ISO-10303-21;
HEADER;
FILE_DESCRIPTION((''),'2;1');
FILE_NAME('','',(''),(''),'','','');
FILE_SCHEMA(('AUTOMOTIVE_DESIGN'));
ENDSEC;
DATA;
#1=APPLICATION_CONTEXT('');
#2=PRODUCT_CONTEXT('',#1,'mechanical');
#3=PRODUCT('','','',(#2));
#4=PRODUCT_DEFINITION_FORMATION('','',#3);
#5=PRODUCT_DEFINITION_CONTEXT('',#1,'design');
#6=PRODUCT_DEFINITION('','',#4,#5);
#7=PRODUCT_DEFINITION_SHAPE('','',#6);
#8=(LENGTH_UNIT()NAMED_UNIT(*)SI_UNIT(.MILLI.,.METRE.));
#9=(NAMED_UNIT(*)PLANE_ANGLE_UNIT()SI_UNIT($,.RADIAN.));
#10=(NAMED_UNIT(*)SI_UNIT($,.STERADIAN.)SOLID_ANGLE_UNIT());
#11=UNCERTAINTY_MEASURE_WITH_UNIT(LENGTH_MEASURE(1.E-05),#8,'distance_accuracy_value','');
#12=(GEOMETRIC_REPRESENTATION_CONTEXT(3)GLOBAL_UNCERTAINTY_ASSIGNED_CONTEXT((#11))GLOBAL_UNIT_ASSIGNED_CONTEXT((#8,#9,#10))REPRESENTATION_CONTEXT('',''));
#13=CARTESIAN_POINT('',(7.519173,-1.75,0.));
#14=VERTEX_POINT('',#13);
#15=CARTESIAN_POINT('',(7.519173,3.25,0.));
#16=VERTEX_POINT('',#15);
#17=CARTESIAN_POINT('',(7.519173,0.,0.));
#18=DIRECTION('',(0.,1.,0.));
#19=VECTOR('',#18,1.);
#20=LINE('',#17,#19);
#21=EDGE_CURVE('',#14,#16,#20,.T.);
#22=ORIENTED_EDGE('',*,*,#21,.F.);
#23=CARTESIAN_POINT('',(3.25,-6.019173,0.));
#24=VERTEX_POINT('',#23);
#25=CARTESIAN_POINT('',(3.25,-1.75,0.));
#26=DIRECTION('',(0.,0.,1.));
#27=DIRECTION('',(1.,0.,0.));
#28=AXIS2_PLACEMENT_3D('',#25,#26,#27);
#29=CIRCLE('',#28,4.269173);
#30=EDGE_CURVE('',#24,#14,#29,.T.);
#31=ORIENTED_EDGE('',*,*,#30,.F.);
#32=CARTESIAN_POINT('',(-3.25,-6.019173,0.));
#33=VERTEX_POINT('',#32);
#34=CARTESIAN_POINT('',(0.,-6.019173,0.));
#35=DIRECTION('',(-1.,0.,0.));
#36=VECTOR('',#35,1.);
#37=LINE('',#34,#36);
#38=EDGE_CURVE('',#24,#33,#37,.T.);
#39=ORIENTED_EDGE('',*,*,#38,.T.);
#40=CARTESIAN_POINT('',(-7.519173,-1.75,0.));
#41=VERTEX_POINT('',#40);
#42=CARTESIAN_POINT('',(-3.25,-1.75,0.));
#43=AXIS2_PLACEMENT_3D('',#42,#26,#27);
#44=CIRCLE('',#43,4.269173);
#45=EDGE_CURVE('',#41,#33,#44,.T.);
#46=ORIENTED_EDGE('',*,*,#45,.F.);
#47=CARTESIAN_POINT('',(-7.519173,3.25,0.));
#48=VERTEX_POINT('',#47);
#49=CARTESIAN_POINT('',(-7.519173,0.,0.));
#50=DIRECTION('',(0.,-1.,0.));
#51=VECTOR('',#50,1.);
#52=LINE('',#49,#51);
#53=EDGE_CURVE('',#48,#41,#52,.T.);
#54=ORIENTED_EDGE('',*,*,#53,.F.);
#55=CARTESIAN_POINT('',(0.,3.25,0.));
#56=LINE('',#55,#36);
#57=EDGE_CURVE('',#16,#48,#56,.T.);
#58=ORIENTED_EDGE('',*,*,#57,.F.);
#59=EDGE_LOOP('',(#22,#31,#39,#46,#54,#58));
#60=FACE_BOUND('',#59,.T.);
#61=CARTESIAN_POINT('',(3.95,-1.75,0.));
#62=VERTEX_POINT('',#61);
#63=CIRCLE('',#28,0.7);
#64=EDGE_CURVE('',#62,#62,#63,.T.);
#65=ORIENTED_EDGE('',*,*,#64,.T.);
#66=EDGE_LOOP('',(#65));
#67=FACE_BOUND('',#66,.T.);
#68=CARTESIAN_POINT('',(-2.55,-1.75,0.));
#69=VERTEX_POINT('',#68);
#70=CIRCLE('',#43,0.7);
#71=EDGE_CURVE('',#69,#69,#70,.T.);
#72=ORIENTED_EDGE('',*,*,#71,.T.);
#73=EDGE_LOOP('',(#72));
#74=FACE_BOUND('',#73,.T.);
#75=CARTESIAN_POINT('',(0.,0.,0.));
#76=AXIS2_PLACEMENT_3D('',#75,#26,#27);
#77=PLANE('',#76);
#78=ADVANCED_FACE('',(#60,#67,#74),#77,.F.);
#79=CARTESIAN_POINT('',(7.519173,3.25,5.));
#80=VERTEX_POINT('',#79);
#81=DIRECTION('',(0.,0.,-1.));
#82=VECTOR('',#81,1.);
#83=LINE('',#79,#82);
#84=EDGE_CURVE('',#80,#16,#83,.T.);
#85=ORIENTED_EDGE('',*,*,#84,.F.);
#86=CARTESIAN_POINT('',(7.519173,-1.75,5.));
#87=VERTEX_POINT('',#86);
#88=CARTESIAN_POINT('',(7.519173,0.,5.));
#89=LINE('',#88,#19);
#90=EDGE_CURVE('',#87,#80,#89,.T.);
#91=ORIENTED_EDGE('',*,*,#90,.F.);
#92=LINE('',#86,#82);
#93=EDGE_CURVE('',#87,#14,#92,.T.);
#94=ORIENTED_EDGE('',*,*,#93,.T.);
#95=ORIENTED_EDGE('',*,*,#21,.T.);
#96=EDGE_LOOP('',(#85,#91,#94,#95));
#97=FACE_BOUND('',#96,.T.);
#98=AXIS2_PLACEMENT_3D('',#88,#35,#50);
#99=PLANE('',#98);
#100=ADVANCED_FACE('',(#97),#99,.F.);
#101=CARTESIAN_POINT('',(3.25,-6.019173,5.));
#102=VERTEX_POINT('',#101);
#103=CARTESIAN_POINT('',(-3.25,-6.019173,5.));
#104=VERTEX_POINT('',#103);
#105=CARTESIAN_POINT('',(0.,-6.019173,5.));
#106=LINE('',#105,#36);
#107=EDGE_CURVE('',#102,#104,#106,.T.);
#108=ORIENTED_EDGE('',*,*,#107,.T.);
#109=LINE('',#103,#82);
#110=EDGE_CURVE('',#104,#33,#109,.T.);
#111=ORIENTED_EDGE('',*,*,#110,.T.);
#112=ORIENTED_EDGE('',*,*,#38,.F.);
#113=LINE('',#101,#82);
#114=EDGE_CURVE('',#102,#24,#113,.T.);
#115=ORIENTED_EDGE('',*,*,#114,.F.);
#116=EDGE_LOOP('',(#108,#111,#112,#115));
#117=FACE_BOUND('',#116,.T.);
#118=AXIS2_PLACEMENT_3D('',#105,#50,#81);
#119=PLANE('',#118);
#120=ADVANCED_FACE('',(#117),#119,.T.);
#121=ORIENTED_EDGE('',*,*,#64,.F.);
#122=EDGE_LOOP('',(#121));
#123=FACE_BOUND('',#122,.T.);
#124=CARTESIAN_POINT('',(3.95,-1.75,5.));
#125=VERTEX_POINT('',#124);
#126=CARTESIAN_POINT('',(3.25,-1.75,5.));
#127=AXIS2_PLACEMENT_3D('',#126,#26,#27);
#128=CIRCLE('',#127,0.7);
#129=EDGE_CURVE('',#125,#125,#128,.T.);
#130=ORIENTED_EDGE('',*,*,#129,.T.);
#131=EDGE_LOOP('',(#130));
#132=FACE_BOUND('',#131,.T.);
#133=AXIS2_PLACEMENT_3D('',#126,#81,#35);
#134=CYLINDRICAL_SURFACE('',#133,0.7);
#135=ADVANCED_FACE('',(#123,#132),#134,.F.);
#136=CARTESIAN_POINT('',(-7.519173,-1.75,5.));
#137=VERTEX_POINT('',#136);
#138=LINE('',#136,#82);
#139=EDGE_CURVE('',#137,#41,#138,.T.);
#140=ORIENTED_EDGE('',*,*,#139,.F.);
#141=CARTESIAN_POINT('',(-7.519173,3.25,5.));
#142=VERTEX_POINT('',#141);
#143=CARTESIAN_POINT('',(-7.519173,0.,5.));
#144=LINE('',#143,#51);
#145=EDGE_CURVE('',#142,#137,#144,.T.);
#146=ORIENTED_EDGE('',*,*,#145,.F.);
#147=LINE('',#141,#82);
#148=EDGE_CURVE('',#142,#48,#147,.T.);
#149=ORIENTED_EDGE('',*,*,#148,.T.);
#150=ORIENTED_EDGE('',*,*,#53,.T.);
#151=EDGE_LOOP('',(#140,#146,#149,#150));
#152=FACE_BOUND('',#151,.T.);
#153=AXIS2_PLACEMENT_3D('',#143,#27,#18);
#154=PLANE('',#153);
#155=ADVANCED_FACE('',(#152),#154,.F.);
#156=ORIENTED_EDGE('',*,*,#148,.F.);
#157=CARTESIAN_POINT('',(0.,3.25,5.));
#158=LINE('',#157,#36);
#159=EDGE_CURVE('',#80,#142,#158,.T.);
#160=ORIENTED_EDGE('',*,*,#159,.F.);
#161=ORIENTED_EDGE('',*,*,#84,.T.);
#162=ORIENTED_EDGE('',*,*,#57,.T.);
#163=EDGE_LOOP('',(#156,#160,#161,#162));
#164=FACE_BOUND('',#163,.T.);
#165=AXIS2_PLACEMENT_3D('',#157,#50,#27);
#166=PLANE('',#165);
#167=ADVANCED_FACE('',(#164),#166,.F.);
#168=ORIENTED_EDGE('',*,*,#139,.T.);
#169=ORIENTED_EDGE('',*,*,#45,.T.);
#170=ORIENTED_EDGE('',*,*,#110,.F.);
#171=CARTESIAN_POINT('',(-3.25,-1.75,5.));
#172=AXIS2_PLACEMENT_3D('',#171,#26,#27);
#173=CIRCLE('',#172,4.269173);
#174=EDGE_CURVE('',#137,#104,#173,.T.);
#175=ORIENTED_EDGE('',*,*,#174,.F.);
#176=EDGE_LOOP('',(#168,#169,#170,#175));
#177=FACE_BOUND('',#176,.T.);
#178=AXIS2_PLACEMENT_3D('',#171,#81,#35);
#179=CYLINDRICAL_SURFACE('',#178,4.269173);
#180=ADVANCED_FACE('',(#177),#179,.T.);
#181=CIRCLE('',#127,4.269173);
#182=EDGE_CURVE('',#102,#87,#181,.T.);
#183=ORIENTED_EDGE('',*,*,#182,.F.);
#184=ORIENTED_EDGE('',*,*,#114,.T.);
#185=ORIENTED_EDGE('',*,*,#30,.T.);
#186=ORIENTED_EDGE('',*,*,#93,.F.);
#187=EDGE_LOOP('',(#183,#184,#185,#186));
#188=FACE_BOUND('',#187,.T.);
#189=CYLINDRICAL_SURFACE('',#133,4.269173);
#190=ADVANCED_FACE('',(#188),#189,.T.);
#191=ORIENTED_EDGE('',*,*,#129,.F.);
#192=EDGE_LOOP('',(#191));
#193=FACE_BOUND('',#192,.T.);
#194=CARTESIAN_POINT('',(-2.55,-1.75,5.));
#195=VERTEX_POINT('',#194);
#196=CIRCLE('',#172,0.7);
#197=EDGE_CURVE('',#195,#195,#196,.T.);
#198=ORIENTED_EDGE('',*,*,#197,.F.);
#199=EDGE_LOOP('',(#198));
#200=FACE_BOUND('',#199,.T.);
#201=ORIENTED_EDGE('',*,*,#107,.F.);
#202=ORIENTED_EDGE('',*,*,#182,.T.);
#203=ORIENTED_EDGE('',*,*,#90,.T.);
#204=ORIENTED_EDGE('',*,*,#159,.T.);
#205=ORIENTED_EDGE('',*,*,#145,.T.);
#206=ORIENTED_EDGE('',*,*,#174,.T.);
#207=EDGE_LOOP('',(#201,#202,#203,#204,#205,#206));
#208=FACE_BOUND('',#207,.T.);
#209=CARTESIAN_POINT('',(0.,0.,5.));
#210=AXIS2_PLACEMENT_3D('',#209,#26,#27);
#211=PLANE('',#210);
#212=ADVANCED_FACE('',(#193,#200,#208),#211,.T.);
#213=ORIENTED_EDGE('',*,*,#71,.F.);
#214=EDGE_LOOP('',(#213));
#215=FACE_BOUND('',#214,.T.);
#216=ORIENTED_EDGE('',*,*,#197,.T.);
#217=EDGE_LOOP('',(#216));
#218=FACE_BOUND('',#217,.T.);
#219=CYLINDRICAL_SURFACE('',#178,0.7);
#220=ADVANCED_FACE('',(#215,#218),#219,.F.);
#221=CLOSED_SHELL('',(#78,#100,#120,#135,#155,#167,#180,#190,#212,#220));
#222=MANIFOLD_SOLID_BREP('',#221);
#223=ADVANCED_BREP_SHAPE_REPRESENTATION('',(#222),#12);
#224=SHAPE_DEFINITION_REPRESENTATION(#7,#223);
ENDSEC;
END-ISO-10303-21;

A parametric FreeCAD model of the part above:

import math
import FreeCAD as App
import Part
import Sketcher
from FreeCAD import Vector

doc = App.newDocument("Part")
params = doc.addObject("Spreadsheet::Sheet", "Params")
for row, (alias, value) in enumerate([
    ("sketch1_diameter", "1.4 mm"),
    ("sketch1_height", "5 mm"),
    ("sketch1_width", "6.5 mm"),
    ("pad1_length", "5 mm"),
], start=1):
    params.set(f"A{row}", alias)
    params.set(f"B{row}", "=" + value)
    params.setAlias(f"B{row}", alias)

body = doc.addObject("PartDesign::Body", "Body")

# Sketch on XY plane
sketch1 = doc.addObject("Sketcher::SketchObject", "Sketch")
body.addObject(sketch1)
sketch1.AttachmentSupport = (doc.XY_Plane, [""])
sketch1.MapMode = "FlatFace"
sketch1.addGeometry(Part.LineSegment(Vector(-3.2, -6, 0), Vector(3.2, -6, 0)), False)
sketch1.addGeometry(Part.ArcOfCircle(Part.Circle(Vector(3.2, -1.7, 0), Vector(0, 0, 1), 4.3), math.radians(-90), math.radians(0)), False)
sketch1.addGeometry(Part.LineSegment(Vector(7.5, -1.8, 0), Vector(7.5, 3.2, 0)), False)
sketch1.addGeometry(Part.LineSegment(Vector(7.5, 3.2, 0), Vector(-7.5, 3.2, 0)), False)
sketch1.addGeometry(Part.LineSegment(Vector(-7.5, 3.2, 0), Vector(-7.5, -1.8, 0)), False)
sketch1.addGeometry(Part.ArcOfCircle(Part.Circle(Vector(-3.2, -1.7, 0), Vector(0, 0, 1), 4.3), math.radians(-180), math.radians(-90)), False)
sketch1.addGeometry(Part.Circle(Vector(3.2, -1.8, 0), Vector(0, 0, 1), 0.7), False)
sketch1.addGeometry(Part.Circle(Vector(-3.2, -1.8, 0), Vector(0, 0, 1), 0.7), False)
sketch1.addConstraint(Sketcher.Constraint("Tangent", 0, 2, 1, 1))
sketch1.addConstraint(Sketcher.Constraint("Tangent", 1, 2, 2, 1))
sketch1.addConstraint(Sketcher.Constraint("Coincident", 2, 2, 3, 1))
sketch1.addConstraint(Sketcher.Constraint("Coincident", 3, 2, 4, 1))
sketch1.addConstraint(Sketcher.Constraint("Tangent", 4, 2, 5, 1))
sketch1.addConstraint(Sketcher.Constraint("Tangent", 5, 2, 0, 1))
sketch1.addConstraint(Sketcher.Constraint("Horizontal", 0))
sketch1.addConstraint(Sketcher.Constraint("Vertical", 2))
sketch1.addConstraint(Sketcher.Constraint("Horizontal", 3))
sketch1.addConstraint(Sketcher.Constraint("Vertical", 4))
sketch1.addConstraint(Sketcher.Constraint("Coincident", 6, 3, 1, 3))
sketch1.addConstraint(Sketcher.Constraint("Coincident", 7, 3, 5, 3))
sketch1.addConstraint(Sketcher.Constraint("Equal", 1, 5))
sketch1.addConstraint(Sketcher.Constraint("Equal", 6, 7))
sketch1.addConstraint(Sketcher.Constraint("Diameter", 6, 1.4))
sketch1.addConstraint(Sketcher.Constraint("DistanceY", 2, 1, 2, 2, 5.0))
sketch1.addConstraint(Sketcher.Constraint("DistanceX", 0, 1, 0, 2, 6.5))
sketch1.addConstraint(Sketcher.Constraint("DistanceX", -1, 1, 1, 3, 3.25))
sketch1.addConstraint(Sketcher.Constraint("DistanceY", 1, 3, -1, 1, 1.75))
sketch1.addConstraint(Sketcher.Constraint("Radius", 1, 4.269173))
sketch1.setExpression("Constraints[14]", "Params.sketch1_diameter")
sketch1.setExpression("Constraints[15]", "Params.sketch1_height")
sketch1.setExpression("Constraints[16]", "Params.sketch1_width")
pad1 = doc.addObject("PartDesign::Pad", "Pad")
body.addObject(pad1)
pad1.Profile = sketch1
pad1.setExpression("Length", "Params.pad1_length")

doc.recompute()
